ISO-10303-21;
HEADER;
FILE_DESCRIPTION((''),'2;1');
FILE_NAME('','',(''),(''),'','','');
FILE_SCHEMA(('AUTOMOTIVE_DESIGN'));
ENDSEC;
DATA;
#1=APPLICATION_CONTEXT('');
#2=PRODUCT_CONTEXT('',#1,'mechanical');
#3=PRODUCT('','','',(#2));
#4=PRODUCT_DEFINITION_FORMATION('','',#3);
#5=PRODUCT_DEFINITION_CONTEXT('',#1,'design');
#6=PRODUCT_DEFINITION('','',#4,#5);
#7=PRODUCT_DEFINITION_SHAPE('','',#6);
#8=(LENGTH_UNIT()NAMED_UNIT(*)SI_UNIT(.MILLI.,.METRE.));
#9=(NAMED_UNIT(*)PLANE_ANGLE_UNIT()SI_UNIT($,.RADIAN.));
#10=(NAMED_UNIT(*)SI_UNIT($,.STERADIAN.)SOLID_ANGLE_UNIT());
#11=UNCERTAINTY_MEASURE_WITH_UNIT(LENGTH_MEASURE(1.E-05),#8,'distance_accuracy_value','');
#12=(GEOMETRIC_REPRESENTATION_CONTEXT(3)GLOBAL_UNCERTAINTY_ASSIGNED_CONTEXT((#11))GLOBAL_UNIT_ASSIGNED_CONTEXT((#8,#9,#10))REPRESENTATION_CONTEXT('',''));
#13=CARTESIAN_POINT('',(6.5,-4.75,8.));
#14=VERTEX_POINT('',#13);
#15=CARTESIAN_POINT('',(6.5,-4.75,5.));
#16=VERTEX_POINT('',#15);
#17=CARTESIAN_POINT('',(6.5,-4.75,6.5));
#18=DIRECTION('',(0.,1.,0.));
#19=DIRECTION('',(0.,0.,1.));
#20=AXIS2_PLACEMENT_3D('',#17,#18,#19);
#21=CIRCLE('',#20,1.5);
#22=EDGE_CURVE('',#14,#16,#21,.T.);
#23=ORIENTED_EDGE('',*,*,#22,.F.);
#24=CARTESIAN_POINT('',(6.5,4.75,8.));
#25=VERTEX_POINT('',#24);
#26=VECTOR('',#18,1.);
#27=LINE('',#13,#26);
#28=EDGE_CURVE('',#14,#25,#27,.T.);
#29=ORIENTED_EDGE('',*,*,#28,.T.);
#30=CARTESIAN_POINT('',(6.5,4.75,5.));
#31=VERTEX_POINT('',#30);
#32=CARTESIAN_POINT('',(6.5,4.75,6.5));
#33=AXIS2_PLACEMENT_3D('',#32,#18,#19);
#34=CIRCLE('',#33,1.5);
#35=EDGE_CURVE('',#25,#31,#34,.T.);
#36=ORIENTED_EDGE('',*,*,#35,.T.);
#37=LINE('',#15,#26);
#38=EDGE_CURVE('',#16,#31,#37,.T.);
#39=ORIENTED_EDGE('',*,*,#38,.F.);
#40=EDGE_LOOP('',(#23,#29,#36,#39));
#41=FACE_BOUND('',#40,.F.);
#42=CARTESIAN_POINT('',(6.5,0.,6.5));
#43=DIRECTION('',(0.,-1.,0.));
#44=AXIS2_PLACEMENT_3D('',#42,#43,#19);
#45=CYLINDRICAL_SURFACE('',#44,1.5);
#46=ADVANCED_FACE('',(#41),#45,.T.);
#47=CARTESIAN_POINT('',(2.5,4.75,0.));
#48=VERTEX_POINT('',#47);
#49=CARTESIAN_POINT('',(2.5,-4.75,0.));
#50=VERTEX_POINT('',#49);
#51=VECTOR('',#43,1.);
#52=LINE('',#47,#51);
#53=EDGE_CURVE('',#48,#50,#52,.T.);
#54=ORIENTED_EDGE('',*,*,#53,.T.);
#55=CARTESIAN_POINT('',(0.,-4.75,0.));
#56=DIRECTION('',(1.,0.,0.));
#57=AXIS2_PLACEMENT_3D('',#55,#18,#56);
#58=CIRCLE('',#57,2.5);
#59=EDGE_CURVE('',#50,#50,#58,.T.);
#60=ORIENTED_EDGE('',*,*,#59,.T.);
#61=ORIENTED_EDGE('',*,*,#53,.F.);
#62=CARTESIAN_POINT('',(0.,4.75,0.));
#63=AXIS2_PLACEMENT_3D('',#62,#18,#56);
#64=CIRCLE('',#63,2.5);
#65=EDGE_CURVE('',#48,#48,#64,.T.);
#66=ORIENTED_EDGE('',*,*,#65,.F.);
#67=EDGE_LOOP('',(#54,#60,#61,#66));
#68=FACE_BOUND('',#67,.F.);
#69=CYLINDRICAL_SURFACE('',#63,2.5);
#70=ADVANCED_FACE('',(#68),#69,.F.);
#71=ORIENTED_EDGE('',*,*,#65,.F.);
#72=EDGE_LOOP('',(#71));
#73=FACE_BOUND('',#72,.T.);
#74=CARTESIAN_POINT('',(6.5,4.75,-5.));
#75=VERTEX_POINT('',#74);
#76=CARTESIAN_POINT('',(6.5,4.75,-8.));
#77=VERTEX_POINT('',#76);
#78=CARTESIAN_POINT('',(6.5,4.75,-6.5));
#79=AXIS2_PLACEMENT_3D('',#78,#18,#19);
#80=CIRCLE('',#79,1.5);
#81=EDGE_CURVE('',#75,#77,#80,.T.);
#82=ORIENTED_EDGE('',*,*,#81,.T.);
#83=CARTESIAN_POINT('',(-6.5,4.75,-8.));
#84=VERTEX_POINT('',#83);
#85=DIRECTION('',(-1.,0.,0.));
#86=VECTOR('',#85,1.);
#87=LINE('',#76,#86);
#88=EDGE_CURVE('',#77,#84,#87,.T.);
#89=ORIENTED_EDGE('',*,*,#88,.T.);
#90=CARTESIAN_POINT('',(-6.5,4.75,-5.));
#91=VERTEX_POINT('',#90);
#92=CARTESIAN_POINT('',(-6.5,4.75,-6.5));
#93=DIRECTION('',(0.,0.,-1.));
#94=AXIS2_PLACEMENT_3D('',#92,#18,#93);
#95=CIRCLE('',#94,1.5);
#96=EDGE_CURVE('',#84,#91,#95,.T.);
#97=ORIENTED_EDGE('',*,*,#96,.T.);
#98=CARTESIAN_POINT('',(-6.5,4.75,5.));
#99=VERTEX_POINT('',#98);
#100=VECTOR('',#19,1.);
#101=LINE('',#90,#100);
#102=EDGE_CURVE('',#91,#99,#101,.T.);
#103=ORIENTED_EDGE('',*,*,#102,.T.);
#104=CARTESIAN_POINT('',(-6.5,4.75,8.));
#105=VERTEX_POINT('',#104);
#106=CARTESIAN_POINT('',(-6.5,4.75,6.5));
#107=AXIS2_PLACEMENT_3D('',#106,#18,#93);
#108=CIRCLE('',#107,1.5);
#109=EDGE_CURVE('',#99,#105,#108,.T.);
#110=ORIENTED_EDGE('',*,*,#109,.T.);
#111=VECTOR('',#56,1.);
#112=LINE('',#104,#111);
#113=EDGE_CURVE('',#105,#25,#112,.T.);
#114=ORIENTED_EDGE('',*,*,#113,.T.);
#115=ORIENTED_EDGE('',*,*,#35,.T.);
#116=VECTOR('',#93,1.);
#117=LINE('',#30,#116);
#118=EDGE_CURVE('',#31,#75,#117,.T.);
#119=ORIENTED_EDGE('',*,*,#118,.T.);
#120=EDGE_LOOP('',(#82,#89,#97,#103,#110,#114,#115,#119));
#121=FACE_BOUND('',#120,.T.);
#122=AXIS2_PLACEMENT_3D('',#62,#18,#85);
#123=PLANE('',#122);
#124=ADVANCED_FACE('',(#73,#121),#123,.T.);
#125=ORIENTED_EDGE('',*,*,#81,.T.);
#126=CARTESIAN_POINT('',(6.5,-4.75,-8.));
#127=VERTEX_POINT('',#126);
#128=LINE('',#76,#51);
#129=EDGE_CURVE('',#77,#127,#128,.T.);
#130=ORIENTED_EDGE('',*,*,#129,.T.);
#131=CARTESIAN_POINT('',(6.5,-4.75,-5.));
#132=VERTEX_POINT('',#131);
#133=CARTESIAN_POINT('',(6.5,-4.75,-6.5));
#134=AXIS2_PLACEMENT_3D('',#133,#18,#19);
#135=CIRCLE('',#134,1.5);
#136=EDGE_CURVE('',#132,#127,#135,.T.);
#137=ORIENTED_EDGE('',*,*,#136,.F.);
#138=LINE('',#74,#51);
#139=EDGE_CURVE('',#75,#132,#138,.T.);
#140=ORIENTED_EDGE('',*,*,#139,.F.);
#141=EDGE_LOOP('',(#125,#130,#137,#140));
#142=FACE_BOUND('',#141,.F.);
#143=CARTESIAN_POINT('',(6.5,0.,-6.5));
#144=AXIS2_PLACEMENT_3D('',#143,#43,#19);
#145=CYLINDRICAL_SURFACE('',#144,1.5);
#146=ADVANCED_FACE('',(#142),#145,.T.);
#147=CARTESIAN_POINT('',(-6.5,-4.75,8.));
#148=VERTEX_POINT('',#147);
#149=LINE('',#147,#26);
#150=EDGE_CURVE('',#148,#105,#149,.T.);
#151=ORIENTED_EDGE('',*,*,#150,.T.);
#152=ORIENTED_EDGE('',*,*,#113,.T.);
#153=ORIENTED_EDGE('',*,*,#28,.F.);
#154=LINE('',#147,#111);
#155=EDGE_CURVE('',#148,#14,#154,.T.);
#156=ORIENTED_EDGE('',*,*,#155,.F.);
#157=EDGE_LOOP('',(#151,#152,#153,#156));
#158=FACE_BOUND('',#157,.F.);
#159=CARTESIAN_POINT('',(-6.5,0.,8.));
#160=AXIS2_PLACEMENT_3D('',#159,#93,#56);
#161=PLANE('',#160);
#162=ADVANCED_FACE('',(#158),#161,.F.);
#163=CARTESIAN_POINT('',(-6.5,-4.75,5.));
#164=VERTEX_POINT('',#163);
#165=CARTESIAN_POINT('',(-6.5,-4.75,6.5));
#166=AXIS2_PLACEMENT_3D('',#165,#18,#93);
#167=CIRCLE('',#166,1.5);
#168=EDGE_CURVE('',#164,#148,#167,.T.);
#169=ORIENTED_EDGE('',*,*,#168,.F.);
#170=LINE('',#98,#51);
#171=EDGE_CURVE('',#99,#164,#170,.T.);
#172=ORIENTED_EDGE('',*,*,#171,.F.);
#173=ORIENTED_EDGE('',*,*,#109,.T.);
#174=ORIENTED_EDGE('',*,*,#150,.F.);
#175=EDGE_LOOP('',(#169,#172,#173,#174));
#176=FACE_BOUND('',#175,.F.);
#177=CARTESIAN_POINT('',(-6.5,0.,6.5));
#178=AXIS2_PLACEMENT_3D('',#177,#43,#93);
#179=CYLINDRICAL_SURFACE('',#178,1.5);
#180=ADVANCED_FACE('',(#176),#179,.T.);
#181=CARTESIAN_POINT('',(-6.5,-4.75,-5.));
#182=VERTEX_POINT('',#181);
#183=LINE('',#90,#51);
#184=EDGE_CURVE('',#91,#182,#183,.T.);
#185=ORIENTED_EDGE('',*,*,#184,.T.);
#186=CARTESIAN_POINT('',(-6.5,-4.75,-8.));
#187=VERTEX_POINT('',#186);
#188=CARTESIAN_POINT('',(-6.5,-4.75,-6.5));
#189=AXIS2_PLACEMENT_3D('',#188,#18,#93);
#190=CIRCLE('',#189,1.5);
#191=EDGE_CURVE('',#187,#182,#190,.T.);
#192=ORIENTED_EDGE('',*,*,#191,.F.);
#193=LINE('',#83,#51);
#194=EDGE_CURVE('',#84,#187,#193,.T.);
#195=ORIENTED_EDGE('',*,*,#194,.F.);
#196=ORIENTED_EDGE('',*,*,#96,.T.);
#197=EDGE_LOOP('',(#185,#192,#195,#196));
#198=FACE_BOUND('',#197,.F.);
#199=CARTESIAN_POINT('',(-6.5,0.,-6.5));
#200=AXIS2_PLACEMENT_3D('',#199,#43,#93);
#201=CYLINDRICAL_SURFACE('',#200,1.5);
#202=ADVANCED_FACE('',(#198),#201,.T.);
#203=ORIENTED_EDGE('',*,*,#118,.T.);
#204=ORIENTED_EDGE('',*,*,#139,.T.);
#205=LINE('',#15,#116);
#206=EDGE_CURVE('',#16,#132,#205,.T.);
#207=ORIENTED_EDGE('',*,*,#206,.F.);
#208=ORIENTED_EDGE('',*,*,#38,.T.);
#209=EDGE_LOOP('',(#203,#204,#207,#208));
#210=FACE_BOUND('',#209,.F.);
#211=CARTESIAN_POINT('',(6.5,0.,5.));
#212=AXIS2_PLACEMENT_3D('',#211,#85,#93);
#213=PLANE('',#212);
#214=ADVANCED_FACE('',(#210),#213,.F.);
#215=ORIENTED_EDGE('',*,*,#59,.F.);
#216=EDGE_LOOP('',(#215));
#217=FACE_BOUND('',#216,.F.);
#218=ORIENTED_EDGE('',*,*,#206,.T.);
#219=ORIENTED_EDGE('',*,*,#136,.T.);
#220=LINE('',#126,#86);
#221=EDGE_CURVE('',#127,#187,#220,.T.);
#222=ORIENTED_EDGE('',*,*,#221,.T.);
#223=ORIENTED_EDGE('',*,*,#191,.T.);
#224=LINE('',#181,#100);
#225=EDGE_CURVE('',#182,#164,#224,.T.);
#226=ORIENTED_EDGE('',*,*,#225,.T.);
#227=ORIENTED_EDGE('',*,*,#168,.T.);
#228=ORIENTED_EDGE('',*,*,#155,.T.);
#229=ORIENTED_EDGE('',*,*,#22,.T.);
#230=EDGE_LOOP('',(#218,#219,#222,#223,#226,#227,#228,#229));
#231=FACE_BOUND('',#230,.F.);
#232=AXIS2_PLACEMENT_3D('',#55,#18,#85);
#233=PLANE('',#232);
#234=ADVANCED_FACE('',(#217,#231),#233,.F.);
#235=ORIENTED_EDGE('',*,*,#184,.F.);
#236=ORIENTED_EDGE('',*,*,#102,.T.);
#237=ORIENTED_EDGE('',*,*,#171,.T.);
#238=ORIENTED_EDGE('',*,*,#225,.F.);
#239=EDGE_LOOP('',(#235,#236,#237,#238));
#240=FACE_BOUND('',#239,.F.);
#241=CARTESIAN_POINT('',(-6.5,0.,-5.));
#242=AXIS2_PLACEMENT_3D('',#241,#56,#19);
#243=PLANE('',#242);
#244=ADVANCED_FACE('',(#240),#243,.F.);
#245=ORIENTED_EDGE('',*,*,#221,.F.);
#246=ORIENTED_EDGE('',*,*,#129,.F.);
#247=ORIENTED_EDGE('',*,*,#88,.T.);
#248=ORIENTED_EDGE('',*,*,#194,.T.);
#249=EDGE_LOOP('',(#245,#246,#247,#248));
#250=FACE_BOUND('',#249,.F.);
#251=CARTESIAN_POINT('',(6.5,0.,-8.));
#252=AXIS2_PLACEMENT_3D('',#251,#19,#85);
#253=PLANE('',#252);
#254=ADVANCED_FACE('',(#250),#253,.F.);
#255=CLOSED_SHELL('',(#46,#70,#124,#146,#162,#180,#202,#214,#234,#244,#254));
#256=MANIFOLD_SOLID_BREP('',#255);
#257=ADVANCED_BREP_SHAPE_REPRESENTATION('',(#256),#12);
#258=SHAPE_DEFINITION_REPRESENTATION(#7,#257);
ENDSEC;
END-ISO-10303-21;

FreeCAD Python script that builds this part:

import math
import FreeCAD as App
import Part
import Sketcher
from FreeCAD import Vector

doc = App.newDocument("Part")
body = doc.addObject("PartDesign::Body", "Body")

sketch1 = body.newObject("Sketcher::SketchObject", "Sketch")
sketch1.AttachmentSupport = (doc.getObject("XZ_Plane"), [""])
sketch1.MapMode = "FlatFace"
sketch1.addGeometry([
    Part.ArcOfCircle(Part.Circle(Vector(-6.5, 6.5, 0), Vector(0, 0, 1), 1.5), math.radians(90), math.radians(270)),
    Part.LineSegment(Vector(-6.5, 8, 0), Vector(6.5, 8, 0)),
    Part.ArcOfCircle(Part.Circle(Vector(6.5, 6.5, 0), Vector(0, 0, 1), 1.5), math.radians(-90), math.radians(90)),
    Part.LineSegment(Vector(6.5, 5, 0), Vector(6.5, -5, 0)),
    Part.ArcOfCircle(Part.Circle(Vector(6.5, -6.5, 0), Vector(0, 0, 1), 1.5), math.radians(-90), math.radians(90)),
    Part.LineSegment(Vector(6.5, -8, 0), Vector(-6.5, -8, 0)),
    Part.ArcOfCircle(Part.Circle(Vector(-6.5, -6.5, 0), Vector(0, 0, 1), 1.5), math.radians(90), math.radians(270)),
    Part.LineSegment(Vector(-6.5, -5, 0), Vector(-6.5, 5, 0)),
], False)
sketch1.addConstraint([
    Sketcher.Constraint("Tangent", 0, 1, 1, 1),
    Sketcher.Constraint("Tangent", 1, 2, 2, 2),
    Sketcher.Constraint("Coincident", 2, 1, 3, 1),
    Sketcher.Constraint("Coincident", 3, 2, 4, 2),
    Sketcher.Constraint("Tangent", 4, 1, 5, 1),
    Sketcher.Constraint("Tangent", 5, 2, 6, 2),
    Sketcher.Constraint("Coincident", 6, 1, 7, 1),
    Sketcher.Constraint("Coincident", 7, 2, 0, 2),
    Sketcher.Constraint("Horizontal", 1),
    Sketcher.Constraint("Vertical", 3),
    Sketcher.Constraint("Horizontal", 5),
    Sketcher.Constraint("Vertical", 7),
    Sketcher.Constraint("Equal", 0, 2),
    Sketcher.Constraint("Equal", 2, 4),
    Sketcher.Constraint("Equal", 4, 6),
    Sketcher.Constraint("Symmetric", 0, 3, 4, 3, -1, 1),
    Sketcher.Constraint("Vertical", 2, 3, 4, 3),
    Sketcher.Constraint("Vertical", 0, 3, 6, 3),
    Sketcher.Constraint("Vertical", 1, 2, 2, 1),
    Sketcher.Constraint("Vertical", 5, 2, 6, 1),
    Sketcher.Constraint("Radius", 0, 1.5),
    Sketcher.Constraint("DistanceX", 1, 1, 1, 2, 13.0),
    Sketcher.Constraint("DistanceY", 3, 2, 3, 1, 10.0),
])
pad1 = body.newObject("PartDesign::Pad", "Pad")
pad1.Profile = sketch1
pad1.Length = 9.5
pad1.Midplane = True

sketch2 = body.newObject("Sketcher::SketchObject", "Sketch001")
sketch2.AttachmentSupport = (doc.getObject("XZ_Plane"), [""])
sketch2.MapMode = "FlatFace"
sketch2.AttachmentOffset = App.Placement(Vector(0, 0, -4.75), App.Rotation())
sketch2.addGeometry(Part.Circle(Vector(0, 0, 0), Vector(0, 0, 1), 2.5), False)
sketch2.addConstraint([
    Sketcher.Constraint("Coincident", 0, 3, -1, 1),
    Sketcher.Constraint("Diameter", 0, 5.0),
])
pocket1 = body.newObject("PartDesign::Pocket", "Pocket")
pocket1.Profile = sketch2
pocket1.Type = "ThroughAll"
pocket1.Reversed = True

doc.recompute()
